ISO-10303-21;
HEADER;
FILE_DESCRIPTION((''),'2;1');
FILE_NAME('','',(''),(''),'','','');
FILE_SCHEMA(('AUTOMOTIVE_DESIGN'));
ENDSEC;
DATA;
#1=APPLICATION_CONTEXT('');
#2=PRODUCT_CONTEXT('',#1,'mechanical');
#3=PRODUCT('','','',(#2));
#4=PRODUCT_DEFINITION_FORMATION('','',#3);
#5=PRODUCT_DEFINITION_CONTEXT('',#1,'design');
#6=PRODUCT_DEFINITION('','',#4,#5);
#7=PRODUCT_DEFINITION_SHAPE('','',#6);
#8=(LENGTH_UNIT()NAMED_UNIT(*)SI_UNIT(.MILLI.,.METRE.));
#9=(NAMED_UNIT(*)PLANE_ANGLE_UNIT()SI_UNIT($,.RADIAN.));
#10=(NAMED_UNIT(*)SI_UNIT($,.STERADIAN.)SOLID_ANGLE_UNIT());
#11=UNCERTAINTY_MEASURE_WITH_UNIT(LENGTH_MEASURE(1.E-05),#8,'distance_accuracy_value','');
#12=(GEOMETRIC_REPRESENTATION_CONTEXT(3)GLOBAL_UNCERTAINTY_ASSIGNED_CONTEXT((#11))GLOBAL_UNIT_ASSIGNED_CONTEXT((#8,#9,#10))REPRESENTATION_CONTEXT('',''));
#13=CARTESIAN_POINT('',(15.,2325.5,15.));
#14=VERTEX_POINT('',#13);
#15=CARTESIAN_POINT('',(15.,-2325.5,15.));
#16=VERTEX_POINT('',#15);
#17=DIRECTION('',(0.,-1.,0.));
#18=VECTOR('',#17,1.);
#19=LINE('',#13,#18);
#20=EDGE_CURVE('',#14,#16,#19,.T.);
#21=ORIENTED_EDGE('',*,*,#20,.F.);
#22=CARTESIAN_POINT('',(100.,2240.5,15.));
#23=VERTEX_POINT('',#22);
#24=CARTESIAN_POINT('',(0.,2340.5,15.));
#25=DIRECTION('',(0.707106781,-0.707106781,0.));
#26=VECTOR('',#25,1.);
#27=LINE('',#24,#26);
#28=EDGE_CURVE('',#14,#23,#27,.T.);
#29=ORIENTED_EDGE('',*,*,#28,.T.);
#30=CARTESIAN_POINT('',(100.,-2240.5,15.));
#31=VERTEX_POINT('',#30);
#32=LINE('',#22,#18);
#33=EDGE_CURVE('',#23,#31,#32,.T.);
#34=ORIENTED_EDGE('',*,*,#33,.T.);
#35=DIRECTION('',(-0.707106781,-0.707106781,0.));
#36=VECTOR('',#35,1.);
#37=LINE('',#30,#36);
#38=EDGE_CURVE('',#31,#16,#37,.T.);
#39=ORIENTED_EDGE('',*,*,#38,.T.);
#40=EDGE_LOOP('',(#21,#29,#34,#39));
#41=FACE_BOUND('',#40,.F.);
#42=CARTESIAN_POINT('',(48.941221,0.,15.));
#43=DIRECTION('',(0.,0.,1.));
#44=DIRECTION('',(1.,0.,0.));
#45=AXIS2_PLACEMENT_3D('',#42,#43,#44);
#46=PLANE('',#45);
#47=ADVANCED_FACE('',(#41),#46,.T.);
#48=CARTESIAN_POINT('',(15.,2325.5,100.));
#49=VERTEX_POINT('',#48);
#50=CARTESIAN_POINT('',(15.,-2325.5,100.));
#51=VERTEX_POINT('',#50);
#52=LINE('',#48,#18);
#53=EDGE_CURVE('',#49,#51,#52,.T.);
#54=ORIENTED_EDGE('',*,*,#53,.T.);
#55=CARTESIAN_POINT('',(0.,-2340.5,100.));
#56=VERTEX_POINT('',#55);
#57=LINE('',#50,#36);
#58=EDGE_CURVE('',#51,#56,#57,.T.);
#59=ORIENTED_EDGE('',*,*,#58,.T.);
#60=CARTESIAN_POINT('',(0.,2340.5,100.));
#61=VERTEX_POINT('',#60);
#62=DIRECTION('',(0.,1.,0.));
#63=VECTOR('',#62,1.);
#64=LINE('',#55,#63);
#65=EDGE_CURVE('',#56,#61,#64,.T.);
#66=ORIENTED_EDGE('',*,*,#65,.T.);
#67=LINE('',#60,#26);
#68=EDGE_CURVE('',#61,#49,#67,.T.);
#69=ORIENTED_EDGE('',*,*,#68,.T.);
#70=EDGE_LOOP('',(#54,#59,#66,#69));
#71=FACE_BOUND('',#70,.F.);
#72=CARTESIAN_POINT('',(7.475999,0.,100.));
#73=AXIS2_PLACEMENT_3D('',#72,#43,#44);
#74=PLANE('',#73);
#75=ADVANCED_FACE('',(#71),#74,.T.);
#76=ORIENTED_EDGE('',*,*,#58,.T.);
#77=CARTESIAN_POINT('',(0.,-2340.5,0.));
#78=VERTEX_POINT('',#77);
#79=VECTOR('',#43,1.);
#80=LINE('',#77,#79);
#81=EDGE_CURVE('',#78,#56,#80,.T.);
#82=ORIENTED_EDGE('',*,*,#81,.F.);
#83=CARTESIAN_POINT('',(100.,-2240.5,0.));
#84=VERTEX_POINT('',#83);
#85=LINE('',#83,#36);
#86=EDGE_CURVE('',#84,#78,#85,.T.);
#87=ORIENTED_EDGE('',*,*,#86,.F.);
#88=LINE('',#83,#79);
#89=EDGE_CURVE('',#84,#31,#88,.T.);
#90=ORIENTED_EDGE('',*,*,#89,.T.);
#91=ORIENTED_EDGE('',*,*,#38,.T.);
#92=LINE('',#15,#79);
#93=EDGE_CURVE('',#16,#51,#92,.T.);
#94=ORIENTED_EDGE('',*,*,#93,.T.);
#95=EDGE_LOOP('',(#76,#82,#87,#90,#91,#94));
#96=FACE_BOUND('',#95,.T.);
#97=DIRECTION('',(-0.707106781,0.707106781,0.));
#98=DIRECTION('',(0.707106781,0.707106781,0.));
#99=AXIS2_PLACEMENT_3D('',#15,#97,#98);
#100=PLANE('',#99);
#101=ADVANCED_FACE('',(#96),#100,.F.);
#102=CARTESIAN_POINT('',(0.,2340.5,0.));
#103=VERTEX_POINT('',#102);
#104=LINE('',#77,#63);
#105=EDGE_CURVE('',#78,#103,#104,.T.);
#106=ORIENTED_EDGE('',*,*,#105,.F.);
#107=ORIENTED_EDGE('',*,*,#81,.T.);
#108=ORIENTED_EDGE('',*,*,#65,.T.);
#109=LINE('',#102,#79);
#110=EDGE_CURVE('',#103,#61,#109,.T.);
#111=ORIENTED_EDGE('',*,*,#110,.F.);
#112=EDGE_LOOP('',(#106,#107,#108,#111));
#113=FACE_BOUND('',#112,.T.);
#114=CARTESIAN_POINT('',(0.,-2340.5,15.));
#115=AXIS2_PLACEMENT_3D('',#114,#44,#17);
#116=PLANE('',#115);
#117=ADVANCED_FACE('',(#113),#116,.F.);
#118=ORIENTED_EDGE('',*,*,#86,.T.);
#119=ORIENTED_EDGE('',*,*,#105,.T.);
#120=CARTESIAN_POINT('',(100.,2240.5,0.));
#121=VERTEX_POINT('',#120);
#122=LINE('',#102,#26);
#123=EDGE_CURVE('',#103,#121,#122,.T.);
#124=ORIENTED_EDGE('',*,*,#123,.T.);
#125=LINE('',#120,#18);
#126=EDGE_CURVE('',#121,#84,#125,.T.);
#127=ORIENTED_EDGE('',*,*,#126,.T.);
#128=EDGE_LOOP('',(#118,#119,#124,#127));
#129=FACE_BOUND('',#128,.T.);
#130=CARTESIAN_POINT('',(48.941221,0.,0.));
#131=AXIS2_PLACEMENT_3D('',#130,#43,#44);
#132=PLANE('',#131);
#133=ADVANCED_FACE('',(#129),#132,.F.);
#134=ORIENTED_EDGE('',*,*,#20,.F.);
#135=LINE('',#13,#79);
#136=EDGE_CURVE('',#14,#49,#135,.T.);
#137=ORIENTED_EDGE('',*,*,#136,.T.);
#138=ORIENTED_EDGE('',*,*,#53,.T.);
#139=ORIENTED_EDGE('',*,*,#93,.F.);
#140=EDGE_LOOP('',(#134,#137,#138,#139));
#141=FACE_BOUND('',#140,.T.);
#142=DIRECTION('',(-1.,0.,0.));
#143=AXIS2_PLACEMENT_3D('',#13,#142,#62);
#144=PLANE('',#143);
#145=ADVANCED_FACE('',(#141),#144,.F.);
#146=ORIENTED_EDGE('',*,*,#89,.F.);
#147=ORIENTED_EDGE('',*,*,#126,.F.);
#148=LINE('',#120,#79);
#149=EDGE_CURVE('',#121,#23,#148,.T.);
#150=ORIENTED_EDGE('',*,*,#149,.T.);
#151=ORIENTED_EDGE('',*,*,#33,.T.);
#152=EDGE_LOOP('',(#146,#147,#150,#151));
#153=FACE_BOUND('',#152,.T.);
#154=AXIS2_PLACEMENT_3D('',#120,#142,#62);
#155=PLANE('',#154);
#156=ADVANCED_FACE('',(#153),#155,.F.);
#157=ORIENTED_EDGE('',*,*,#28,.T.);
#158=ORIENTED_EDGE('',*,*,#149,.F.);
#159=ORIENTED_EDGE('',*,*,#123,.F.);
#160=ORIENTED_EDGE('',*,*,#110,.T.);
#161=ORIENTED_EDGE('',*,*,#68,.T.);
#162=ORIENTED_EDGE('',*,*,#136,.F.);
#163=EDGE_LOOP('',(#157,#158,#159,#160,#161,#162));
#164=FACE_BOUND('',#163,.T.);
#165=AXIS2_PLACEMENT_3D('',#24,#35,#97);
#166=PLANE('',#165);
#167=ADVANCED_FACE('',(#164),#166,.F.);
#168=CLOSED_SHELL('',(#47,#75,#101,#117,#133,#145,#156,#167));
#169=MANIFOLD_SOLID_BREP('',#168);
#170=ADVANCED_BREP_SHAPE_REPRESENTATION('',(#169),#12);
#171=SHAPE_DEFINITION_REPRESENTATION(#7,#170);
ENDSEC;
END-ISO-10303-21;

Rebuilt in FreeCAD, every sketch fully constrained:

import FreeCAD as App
import Part
import Sketcher
from FreeCAD import Vector


def add_polygon(sketch, points):
    """Adds a closed chain of lines whose ends are joined by coincident constraints."""
    first, n = sketch.GeometryCount, len(points)
    for a, b in zip(points, points[1:] + points[:1]):
        sketch.addGeometry(Part.LineSegment(App.Vector(*a, 0), App.Vector(*b, 0)), False)
    for i in range(n):
        sketch.addConstraint(Sketcher.Constraint("Coincident", first + i, 2, first + (i + 1) % n, 1))

doc = App.newDocument("Part")
body = doc.addObject("PartDesign::Body", "Body")

sketch1 = body.newObject("Sketcher::SketchObject", "Sketch")
sketch1.AttachmentSupport = (doc.getObject("XY_Plane"), [""])
sketch1.MapMode = "FlatFace"
add_polygon(sketch1, [(-100, -2240.5), (0, -2340.5), (0, 2340.5), (-100, 2240.5)])
sketch1.addConstraint(Sketcher.Constraint("Vertical", 1))
sketch1.addConstraint(Sketcher.Constraint("Vertical", 3))
sketch1.addConstraint(Sketcher.Constraint("Symmetric", 0, 2, 1, 2, -1, 1))
sketch1.addConstraint(Sketcher.Constraint("Perpendicular", 0, 2))
sketch1.addConstraint(Sketcher.Constraint("Equal", 0, 2))
sketch1.addConstraint(Sketcher.Constraint("DistanceY", 1, 1, 1, 2, 4681.0))
sketch1.addConstraint(Sketcher.Constraint("DistanceY", 3, 2, 3, 1, 4481.0))
pad1 = body.newObject("PartDesign::Pad", "Pad")
pad1.Profile = sketch1
pad1.Length = 15

sketch2 = body.newObject("Sketcher::SketchObject", "Sketch001")
sketch2.AttachmentSupport = (doc.getObject("XY_Plane"), [""])
sketch2.MapMode = "FlatFace"
sketch2.AttachmentOffset = App.Placement(Vector(0, 0, 15), App.Rotation())
add_polygon(sketch2, [(-15, -2325.5), (0, -2340.5), (0, 2340.5), (-15, 2325.5)])
sketch2.addConstraint(Sketcher.Constraint("Vertical", 1))
sketch2.addConstraint(Sketcher.Constraint("Vertical", 3))
sketch2.addConstraint(Sketcher.Constraint("Symmetric", 0, 2, 1, 2, -1, 1))
sketch2.addConstraint(Sketcher.Constraint("Perpendicular", 0, 2))
sketch2.addConstraint(Sketcher.Constraint("Equal", 0, 2))
sketch2.addConstraint(Sketcher.Constraint("DistanceY", 1, 1, 1, 2, 4681.0))
sketch2.addConstraint(Sketcher.Constraint("DistanceY", 3, 2, 3, 1, 4651.0))
pad2 = body.newObject("PartDesign::Pad", "Pad001")
pad2.Profile = sketch2
pad2.Length = 85
body2 = doc.addObject("PartDesign::Body", "Body001")
doc.recompute()

mirroring = doc.addObject("Part::Mirroring", "Mirroring")
mirroring.Source = body
mirroring.Base = Vector(0, 0, 50)
mirroring.Normal = Vector(1, 0, 0)
body2.BaseFeature = mirroring
doc.recompute()
body.Visibility = False
mirroring.Visibility = False

doc.recompute()
